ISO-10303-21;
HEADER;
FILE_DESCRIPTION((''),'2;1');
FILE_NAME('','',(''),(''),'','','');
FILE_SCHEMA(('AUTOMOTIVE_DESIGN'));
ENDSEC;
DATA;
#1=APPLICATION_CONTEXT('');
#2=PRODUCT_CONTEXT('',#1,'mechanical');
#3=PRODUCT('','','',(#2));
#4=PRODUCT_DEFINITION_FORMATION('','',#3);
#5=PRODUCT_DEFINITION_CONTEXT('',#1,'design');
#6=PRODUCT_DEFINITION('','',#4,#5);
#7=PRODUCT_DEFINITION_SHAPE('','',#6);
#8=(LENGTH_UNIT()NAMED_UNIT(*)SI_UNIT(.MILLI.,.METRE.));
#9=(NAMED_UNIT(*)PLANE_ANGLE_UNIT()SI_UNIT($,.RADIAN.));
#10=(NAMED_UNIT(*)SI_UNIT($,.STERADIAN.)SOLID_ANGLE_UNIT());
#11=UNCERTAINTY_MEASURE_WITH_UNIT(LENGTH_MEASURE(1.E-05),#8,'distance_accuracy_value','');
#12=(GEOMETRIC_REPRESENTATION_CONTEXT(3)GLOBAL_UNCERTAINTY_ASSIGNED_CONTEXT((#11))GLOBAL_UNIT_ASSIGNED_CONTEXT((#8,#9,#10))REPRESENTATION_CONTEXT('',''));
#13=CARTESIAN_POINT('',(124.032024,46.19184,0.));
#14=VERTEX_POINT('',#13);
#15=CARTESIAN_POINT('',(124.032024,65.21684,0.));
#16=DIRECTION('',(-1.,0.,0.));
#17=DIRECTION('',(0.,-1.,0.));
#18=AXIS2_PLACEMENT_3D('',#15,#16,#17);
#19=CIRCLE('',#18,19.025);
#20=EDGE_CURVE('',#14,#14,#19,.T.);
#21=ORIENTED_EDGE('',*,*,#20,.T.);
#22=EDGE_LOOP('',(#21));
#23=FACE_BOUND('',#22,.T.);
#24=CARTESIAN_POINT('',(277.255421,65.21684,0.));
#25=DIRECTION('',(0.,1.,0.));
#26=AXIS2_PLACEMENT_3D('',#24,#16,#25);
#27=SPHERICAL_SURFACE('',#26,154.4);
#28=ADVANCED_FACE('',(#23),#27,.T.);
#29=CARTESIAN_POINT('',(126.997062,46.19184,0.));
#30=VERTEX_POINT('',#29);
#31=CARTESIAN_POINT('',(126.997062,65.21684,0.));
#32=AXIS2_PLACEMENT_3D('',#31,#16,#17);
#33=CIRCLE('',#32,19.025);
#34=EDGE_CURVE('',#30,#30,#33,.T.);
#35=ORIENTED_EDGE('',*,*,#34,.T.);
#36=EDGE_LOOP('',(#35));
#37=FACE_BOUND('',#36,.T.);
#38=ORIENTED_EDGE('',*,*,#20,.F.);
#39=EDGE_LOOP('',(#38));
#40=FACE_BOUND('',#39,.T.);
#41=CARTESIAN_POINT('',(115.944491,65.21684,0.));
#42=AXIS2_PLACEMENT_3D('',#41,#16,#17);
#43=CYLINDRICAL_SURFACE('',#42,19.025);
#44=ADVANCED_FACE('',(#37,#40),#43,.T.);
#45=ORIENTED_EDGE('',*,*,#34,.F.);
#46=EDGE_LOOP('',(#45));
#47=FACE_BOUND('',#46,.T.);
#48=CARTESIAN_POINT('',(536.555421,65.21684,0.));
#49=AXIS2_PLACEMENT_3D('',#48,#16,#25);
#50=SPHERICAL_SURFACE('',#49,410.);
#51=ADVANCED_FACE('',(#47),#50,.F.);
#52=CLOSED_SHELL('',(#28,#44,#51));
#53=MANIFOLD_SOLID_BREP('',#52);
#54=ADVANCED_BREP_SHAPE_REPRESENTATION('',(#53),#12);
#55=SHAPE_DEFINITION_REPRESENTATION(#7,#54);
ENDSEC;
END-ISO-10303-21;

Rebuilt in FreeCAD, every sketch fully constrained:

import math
import FreeCAD as App
import Part
import Sketcher
from FreeCAD import Vector

doc = App.newDocument("Part")
body = doc.addObject("PartDesign::Body", "Body")

# Sketch on XY plane
sketch1 = body.newObject("Sketcher::SketchObject", "Sketch")
sketch1.AttachmentSupport = (doc.getObject("XY_Plane"), [""])
sketch1.MapMode = "FlatFace"
sketch1.addGeometry(Part.LineSegment(Vector(127, 84.2, 0), Vector(124, 84.2, 0)), False)
sketch1.addGeometry(Part.ArcOfCircle(Part.Circle(Vector(277.3, 65.2, 0), Vector(0, 0, 1), 154.4), math.radians(172.92), math.radians(180)), False)
sketch1.addGeometry(Part.LineSegment(Vector(122.9, 65.2, 0), Vector(126.6, 65.2, 0)), False)
sketch1.addGeometry(Part.ArcOfCircle(Part.Circle(Vector(536.6, 65.2, 0), Vector(0, 0, 1), 410), math.radians(177.34), math.radians(180)), False)
sketch1.addGeometry(Part.LineSegment(Vector(122.9, 65.2, 0), Vector(536.6, 65.2, 0)), True)  # axis
sketch1.addConstraint(Sketcher.Constraint("Coincident", 0, 2, 1, 1))
sketch1.addConstraint(Sketcher.Constraint("Coincident", 1, 2, 2, 1))
sketch1.addConstraint(Sketcher.Constraint("Coincident", 2, 2, 3, 2))
sketch1.addConstraint(Sketcher.Constraint("Coincident", 3, 1, 0, 1))
sketch1.addConstraint(Sketcher.Constraint("Horizontal", 0))
sketch1.addConstraint(Sketcher.Constraint("Horizontal", 2))
sketch1.addConstraint(Sketcher.Constraint("Horizontal", 4))
sketch1.addConstraint(Sketcher.Constraint("Coincident", 4, 1, 1, 2))
sketch1.addConstraint(Sketcher.Constraint("Coincident", 4, 2, 3, 3))
sketch1.addConstraint(Sketcher.Constraint("Horizontal", 1, 3, 3, 3))
sketch1.addConstraint(Sketcher.Constraint("Radius", 3, 410.0))
sketch1.addConstraint(Sketcher.Constraint("Radius", 1, 154.4))
sketch1.addConstraint(Sketcher.Constraint("DistanceX", 2, 1, 2, 2, 3.7))
sketch1.addConstraint(Sketcher.Constraint("DistanceY", 1, 3, 0, 2, 19.025))
sketch1.addConstraint(Sketcher.Constraint("DistanceX", -1, 1, 1, 3, 277.255421))
sketch1.addConstraint(Sketcher.Constraint("DistanceY", -1, 1, 1, 3, 65.21684))
revolution = body.newObject("PartDesign::Revolution", "Revolution")
revolution.Profile = sketch1
revolution.ReferenceAxis = (sketch1, ["Axis0"])
revolution.Angle = 360

doc.recompute()
